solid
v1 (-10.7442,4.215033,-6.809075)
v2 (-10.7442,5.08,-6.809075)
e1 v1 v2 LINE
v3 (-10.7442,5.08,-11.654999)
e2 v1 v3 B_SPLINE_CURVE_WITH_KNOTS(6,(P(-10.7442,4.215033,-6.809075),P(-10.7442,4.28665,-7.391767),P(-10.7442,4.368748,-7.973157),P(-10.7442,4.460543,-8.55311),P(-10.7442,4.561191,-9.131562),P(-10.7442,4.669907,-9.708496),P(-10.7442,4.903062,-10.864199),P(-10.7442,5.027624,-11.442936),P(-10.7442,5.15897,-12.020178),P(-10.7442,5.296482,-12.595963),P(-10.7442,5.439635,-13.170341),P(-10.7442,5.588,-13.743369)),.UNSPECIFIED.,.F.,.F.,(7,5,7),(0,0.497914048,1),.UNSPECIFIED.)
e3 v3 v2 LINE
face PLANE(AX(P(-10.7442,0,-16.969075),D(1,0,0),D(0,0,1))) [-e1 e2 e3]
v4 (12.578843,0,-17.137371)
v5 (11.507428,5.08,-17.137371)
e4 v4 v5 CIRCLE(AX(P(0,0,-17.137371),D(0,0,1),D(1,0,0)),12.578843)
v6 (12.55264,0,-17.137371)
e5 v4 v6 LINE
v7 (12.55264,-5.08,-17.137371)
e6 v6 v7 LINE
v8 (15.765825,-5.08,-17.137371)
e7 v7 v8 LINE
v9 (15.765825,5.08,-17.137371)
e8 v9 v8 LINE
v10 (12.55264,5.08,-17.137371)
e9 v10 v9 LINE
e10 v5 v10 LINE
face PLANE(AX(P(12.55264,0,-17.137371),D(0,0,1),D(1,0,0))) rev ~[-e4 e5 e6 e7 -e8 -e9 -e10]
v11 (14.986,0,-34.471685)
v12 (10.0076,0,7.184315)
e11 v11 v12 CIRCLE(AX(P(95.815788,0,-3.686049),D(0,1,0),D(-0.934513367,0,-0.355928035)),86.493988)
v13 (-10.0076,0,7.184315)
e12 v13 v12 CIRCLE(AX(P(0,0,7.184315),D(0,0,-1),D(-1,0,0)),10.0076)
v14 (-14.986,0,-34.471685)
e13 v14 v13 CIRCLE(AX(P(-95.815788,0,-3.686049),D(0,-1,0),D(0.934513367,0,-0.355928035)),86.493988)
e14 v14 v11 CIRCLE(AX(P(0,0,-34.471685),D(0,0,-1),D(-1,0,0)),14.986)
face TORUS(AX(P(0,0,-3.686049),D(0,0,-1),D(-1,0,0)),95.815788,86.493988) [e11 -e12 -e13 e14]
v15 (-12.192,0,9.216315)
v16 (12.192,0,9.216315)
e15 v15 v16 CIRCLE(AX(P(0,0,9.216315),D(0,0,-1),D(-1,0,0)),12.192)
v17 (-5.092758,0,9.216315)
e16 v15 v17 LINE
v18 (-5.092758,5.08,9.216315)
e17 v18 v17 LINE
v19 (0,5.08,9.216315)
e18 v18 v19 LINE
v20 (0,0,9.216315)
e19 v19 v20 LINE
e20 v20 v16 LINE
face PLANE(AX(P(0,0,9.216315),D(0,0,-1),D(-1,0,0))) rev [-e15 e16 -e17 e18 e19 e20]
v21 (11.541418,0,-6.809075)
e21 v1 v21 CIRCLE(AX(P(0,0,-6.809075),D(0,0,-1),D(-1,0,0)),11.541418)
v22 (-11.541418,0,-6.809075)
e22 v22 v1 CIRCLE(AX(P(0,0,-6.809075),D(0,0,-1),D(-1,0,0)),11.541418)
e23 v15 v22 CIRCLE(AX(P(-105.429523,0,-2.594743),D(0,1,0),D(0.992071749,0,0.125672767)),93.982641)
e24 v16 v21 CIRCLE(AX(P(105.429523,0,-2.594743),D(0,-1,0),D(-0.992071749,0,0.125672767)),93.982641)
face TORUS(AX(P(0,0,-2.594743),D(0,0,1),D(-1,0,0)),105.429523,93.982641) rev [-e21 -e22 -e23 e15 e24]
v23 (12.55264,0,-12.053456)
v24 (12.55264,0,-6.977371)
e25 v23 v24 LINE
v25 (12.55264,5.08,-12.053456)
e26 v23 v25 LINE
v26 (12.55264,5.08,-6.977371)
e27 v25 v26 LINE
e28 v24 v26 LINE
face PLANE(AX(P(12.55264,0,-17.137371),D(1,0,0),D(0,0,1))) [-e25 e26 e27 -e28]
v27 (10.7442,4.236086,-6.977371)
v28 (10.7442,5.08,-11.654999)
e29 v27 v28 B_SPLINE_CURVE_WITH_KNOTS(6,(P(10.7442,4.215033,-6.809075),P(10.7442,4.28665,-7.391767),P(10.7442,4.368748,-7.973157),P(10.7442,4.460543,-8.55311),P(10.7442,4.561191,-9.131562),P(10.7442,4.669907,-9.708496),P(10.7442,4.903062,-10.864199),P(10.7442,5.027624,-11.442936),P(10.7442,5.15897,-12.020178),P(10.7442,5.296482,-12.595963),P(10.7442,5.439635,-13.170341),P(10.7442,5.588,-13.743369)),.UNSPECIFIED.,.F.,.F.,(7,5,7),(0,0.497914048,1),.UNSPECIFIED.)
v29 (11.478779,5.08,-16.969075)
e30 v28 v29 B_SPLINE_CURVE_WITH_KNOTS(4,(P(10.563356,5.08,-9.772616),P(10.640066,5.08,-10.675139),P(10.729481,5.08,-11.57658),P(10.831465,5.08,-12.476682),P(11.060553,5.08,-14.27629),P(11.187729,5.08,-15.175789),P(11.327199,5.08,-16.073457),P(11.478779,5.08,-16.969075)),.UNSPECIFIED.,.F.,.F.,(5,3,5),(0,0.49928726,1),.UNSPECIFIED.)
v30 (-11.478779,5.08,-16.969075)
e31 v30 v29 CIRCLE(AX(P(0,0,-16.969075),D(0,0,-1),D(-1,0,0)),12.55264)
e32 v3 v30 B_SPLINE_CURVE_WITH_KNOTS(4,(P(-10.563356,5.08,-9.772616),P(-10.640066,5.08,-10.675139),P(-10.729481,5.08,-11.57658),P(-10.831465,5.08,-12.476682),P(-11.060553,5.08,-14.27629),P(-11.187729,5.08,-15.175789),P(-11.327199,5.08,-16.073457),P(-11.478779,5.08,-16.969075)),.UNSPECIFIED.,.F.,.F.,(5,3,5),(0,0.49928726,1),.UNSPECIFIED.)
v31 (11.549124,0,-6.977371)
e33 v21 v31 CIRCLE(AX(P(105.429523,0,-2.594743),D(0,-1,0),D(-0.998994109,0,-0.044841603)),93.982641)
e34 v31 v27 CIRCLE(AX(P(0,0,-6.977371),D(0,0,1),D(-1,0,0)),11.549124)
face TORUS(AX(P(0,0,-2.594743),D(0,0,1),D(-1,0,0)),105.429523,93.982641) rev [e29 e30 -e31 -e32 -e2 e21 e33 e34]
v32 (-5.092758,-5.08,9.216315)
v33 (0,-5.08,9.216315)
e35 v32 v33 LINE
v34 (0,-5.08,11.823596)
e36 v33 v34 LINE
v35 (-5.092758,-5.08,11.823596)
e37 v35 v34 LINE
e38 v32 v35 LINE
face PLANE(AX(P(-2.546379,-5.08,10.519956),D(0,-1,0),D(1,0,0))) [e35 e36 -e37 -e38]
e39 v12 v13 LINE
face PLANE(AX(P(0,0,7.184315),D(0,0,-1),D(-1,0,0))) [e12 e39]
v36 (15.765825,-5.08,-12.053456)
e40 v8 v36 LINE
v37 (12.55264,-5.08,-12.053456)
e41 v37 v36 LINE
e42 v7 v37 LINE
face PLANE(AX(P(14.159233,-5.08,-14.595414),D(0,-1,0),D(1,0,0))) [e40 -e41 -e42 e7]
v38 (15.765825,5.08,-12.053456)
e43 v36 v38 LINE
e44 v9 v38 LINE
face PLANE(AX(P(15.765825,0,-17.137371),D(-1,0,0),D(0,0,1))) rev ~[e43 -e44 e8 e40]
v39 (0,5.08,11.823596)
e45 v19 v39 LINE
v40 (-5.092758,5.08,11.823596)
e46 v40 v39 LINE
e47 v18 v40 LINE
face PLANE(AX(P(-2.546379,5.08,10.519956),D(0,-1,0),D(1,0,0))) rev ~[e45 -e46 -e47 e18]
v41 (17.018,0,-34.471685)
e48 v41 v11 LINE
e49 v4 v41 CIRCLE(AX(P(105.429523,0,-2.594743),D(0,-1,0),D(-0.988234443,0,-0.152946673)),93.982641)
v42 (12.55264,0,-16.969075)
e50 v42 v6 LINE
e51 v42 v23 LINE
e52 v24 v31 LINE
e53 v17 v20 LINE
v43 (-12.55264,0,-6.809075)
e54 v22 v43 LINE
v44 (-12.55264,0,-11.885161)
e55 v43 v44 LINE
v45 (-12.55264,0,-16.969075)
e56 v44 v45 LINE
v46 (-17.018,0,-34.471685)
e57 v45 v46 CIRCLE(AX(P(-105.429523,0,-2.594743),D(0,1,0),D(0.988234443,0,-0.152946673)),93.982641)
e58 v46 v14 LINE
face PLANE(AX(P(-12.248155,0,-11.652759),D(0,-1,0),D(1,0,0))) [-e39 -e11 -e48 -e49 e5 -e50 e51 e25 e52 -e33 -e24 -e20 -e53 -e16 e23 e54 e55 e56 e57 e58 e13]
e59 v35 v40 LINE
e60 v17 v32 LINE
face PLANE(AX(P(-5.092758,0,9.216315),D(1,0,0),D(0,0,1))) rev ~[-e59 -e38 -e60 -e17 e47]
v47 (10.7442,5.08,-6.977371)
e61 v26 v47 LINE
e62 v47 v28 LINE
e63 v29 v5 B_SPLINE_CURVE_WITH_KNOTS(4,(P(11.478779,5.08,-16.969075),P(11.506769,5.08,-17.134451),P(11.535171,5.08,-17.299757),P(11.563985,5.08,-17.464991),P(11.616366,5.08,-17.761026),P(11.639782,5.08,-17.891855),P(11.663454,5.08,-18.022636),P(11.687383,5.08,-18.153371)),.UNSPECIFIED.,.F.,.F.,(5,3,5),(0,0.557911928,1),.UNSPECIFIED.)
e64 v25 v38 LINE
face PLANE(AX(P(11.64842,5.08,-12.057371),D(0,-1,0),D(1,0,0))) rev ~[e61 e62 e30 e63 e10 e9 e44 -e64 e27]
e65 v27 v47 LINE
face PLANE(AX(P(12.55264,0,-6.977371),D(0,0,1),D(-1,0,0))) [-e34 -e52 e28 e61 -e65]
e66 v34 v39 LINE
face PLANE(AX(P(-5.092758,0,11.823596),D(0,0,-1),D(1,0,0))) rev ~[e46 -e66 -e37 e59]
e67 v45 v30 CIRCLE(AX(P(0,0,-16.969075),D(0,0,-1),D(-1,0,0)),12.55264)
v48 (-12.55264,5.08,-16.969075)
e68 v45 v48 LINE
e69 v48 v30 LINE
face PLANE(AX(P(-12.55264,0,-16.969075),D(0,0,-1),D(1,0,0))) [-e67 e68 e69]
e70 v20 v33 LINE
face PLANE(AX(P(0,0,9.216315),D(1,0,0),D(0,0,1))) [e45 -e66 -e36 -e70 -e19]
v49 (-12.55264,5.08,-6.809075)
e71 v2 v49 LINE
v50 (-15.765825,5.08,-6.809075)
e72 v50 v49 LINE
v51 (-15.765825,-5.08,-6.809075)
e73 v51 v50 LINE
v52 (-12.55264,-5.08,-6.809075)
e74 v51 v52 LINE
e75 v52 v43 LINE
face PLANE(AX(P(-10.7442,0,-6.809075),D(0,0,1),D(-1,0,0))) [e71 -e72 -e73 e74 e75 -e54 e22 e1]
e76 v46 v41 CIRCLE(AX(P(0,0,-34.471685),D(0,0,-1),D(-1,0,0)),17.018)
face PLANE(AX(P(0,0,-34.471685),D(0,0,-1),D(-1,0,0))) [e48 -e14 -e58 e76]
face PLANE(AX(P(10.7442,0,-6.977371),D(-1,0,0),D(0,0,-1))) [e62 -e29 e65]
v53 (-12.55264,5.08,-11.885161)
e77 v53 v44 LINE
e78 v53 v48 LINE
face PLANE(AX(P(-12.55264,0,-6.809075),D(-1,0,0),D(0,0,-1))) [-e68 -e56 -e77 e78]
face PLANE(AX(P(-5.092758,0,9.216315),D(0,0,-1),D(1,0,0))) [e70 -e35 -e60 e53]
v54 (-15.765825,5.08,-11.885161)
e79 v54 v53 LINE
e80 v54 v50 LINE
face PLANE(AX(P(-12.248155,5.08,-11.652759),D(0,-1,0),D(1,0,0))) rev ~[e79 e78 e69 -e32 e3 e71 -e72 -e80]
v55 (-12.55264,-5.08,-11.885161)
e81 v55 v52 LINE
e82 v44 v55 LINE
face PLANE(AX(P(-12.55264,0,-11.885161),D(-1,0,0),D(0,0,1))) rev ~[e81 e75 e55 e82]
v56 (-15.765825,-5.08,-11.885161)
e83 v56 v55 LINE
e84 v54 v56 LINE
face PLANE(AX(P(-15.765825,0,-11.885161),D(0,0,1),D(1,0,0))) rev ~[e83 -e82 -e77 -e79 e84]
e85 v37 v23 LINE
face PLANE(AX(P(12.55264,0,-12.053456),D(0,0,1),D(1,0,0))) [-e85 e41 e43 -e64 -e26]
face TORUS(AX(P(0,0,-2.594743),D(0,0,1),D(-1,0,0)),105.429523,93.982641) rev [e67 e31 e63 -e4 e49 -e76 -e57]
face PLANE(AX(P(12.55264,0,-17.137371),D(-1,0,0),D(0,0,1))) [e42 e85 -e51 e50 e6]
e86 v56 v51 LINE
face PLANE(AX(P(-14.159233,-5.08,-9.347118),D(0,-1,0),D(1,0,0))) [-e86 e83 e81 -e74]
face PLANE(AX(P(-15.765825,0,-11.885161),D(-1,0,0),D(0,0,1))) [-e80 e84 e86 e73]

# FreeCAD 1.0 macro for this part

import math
import FreeCAD as App
import Part
import Sketcher

V = App.Vector
Q = App.Units.Quantity


def add_polygon(sketch, points):
    """Adds a closed chain of lines whose ends are joined by coincident constraints."""
    first, n = sketch.GeometryCount, len(points)
    for a, b in zip(points, points[1:] + points[:1]):
        sketch.addGeometry(Part.LineSegment(App.Vector(*a, 0), App.Vector(*b, 0)), False)
    for i in range(n):
        sketch.addConstraint(Sketcher.Constraint("Coincident", first + i, 2, first + (i + 1) % n, 1))

doc = App.newDocument("Part")
body = doc.addObject("PartDesign::Body", "Body")

# Sketch on XZ plane
sketch1 = doc.addObject("Sketcher::SketchObject", "Sketch")
body.addObject(sketch1)
sketch1.AttachmentSupport = (doc.XZ_Plane, [""])
sketch1.MapMode = "FlatFace"
sketch1.addGeometry([
    Part.LineSegment(V(0, 7.2, 0), V(0, 9.2, 0)),  # 0
    Part.LineSegment(V(0, 9.2, 0), V(-12.2, 9.2, 0)),  # 1
    Part.ArcOfCircle(Part.Circle(V(-105.4, -2.6, 0), V(0, 0, 1), 94), math.radians(-2.57), math.radians(7.22)),  # 2
    Part.ArcOfCircle(Part.Circle(V(-105.4, -2.6, 0), V(0, 0, 1), 94), math.radians(-8.8), math.radians(-2.57)),  # 3
    Part.ArcOfCircle(Part.Circle(V(-105.4, -2.6, 0), V(0, 0, 1), 94), math.radians(-19.83), math.radians(-8.8)),  # 4
    Part.LineSegment(V(-17, -34.5, 0), V(-15, -34.5, 0)),  # 5
    Part.ArcOfCircle(Part.Circle(V(-95.8, -3.7, 0), V(0, 0, 1), 86.5), math.radians(-21), math.radians(7)),  # 6
    Part.LineSegment(V(-10, 7.2, 0), V(0, 7.2, 0)),  # 7
], False)
sketch1.addConstraint([
    Sketcher.Constraint("Coincident", 0, 2, 1, 1),
    Sketcher.Constraint("Coincident", 1, 2, 2, 2),
    Sketcher.Constraint("Tangent", 2, 1, 3, 2),
    Sketcher.Constraint("Tangent", 3, 1, 4, 2),
    Sketcher.Constraint("Coincident", 4, 1, 5, 1),
    Sketcher.Constraint("Coincident", 5, 2, 6, 1),
    Sketcher.Constraint("Coincident", 6, 2, 7, 1),
    Sketcher.Constraint("Coincident", 7, 2, 0, 1),
    Sketcher.Constraint("Vertical", 0),
    Sketcher.Constraint("Horizontal", 1),
    Sketcher.Constraint("Horizontal", 5),
    Sketcher.Constraint("Horizontal", 7),
    Sketcher.Constraint("Coincident", 4, 3, 2, 3),
    Sketcher.Constraint("PointOnObject", 0, 2, -2),
    Sketcher.Constraint("Equal", 5, 0),
    Sketcher.Constraint("DistanceX", 1, 2, 1, 1, Q("0.48 in")),
    Sketcher.Constraint("DistanceX", 5, 1, 5, 2, Q("0.08 in")),
    Sketcher.Constraint("DistanceY", 3, 1, 2, 1, Q("0.4 in")),
    Sketcher.Constraint("DistanceX", 7, 1, 7, 2, Q("0.394 in")),
    Sketcher.Constraint("DistanceX", 4, 1, -1, 1, Q("0.67 in")),
    Sketcher.Constraint("DistanceY", 4, 1, 1, 2, Q("1.72 in")),
    Sketcher.Constraint("Radius", 2, Q("93.982641 mm")),
    Sketcher.Constraint("Radius", 6, Q("86.493988 mm")),
    Sketcher.Constraint("DistanceY", 6, 3, -1, 1, Q("3.686049 mm")),
    Sketcher.Constraint("DistanceX", 2, 1, -1, 1, Q("11.541418 mm")),
])
revolution = doc.addObject("PartDesign::Revolution", "Revolution")
body.addObject(revolution)
revolution.Profile = sketch1
revolution.ReferenceAxis = (sketch1, ["V_Axis"])
revolution.Angle = 180
revolution.Reversed = True

# Sketch on XZ plane
sketch2 = doc.addObject("Sketcher::SketchObject", "Sketch001")
body.addObject(sketch2)
sketch2.AttachmentSupport = (doc.XZ_Plane, [""])
sketch2.MapMode = "FlatFace"
add_polygon(sketch2, [(-12.6, -6.8), (-12.6, -17), (-10.7, -17), (-10.7, -6.8)])  # lines 0-3
add_polygon(sketch2, [(12.6, -7), (10.7, -7), (10.7, -17.1), (12.6, -17.1)])  # lines 4-7
sketch2.addConstraint([
    Sketcher.Constraint("Vertical", 0),
    Sketcher.Constraint("Horizontal", 1),
    Sketcher.Constraint("Vertical", 2),
    Sketcher.Constraint("Horizontal", 3),
    Sketcher.Constraint("Horizontal", 4),
    Sketcher.Constraint("Vertical", 5),
    Sketcher.Constraint("Horizontal", 6),
    Sketcher.Constraint("Vertical", 7),
    Sketcher.Constraint("Equal", 3, 4),
    Sketcher.Constraint("Equal", 2, 5),
    Sketcher.Constraint("DistanceY", 0, 2, 0, 1, Q("0.4 in")),
    Sketcher.Constraint("DistanceX", 1, 2, -1, 1, Q("0.423 in")),
    Sketcher.Constraint("DistanceX", -1, 1, 4, 2, Q("0.423 in")),
    Sketcher.Constraint("DistanceX", 1, 1, 1, 2, Q("1.80844 mm")),
    Sketcher.Constraint("DistanceY", 4, 2, -1, 1, Q("6.977371 mm")),
    Sketcher.Constraint("DistanceY", 0, 2, -1, 1, Q("16.969075 mm")),
])
pad1 = doc.addObject("PartDesign::Pad", "Pad")
body.addObject(pad1)
pad1.Profile = sketch2
pad1.Length = Q("0.2 in")
pad1.Reversed = True

# Sketch on XZ plane
sketch3 = doc.addObject("Sketcher::SketchObject", "Sketch002")
body.addObject(sketch3)
sketch3.AttachmentSupport = (doc.XZ_Plane, [""])
sketch3.MapMode = "FlatFace"
add_polygon(sketch3, [(12.6, -12.1), (12.6, -17.1), (15.8, -17.1), (15.8, -12.1)])  # lines 0-3
add_polygon(sketch3, [(-15.8, -6.8), (-15.8, -11.9), (-12.6, -11.9), (-12.6, -6.8)])  # lines 4-7
add_polygon(sketch3, [(-5.1, 11.8), (-5.1, 9.2), (0, 9.2), (0, 11.8)])  # lines 8-11
sketch3.addConstraint([
    Sketcher.Constraint("Vertical", 0),
    Sketcher.Constraint("Horizontal", 1),
    Sketcher.Constraint("Vertical", 2),
    Sketcher.Constraint("Horizontal", 3),
    Sketcher.Constraint("Vertical", 4),
    Sketcher.Constraint("Horizontal", 5),
    Sketcher.Constraint("Vertical", 6),
    Sketcher.Constraint("Horizontal", 7),
    Sketcher.Constraint("Vertical", 8),
    Sketcher.Constraint("Horizontal", 9),
    Sketcher.Constraint("Vertical", 10),
    Sketcher.Constraint("Horizontal", 11),
    Sketcher.Constraint("PointOnObject", 9, 2, -2),
    Sketcher.Constraint("Equal", 3, 5),
    Sketcher.Constraint("DistanceY", 8, 2, 8, 1, Q("2.607281 mm")),
    Sketcher.Constraint("DistanceX", 1, 1, 1, 2, Q("3.213185 mm")),
    Sketcher.Constraint("DistanceX", 9, 1, 9, 2, Q("5.092758 mm")),
    Sketcher.Constraint("DistanceY", 0, 2, 0, 1, Q("5.083915 mm")),
    Sketcher.Constraint("DistanceY", 4, 2, 4, 1, Q("5.076085 mm")),
    Sketcher.Constraint("DistanceX", -1, 1, 0, 2, Q("12.55264 mm")),
    Sketcher.Constraint("DistanceY", 0, 2, -1, 1, Q("17.137371 mm")),
    Sketcher.Constraint("DistanceY", 4, 2, -1, 1, Q("11.885161 mm")),
    Sketcher.Constraint("DistanceX", 5, 2, -1, 1, Q("12.55264 mm")),
    Sketcher.Constraint("DistanceY", 6, 2, 8, 2, Q("16.025391 mm")),
])
pad2 = doc.addObject("PartDesign::Pad", "Pad001")
body.addObject(pad2)
pad2.Profile = sketch3
pad2.Length = Q("0.4 in")
pad2.Midplane = True

doc.recompute()
